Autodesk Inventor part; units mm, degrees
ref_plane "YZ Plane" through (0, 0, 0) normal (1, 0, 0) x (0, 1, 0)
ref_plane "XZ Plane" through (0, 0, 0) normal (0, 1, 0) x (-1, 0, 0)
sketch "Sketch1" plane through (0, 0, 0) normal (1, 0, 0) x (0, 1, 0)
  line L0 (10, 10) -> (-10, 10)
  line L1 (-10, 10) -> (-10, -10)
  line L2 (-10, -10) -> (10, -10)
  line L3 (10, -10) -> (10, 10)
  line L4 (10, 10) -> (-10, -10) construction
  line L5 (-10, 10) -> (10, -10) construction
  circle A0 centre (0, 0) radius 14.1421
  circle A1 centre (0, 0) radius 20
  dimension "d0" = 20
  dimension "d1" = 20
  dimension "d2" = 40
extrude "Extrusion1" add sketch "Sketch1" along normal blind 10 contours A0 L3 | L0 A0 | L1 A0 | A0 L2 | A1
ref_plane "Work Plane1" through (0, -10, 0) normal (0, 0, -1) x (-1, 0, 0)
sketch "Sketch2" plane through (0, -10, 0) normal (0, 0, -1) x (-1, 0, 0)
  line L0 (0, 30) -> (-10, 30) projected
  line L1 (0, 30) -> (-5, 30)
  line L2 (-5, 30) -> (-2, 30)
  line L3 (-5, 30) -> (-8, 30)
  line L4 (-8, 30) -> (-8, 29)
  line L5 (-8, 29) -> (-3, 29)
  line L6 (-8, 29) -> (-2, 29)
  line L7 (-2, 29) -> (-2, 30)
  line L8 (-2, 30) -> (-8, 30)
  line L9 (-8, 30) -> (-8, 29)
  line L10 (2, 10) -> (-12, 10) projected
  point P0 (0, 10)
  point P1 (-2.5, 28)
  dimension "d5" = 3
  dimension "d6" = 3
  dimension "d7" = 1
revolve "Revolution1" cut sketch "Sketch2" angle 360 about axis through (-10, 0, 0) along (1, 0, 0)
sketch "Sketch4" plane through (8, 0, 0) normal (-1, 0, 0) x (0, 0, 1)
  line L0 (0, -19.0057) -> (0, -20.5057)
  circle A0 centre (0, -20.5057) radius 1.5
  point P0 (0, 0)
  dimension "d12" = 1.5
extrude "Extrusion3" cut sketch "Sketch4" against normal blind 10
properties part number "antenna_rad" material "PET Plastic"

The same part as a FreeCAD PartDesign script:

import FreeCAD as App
import Part
import Sketcher

V = App.Vector
Q = App.Units.Quantity


def add_polygon(sketch, points):
    """Adds a closed chain of lines whose ends are joined by coincident constraints."""
    first, n = sketch.GeometryCount, len(points)
    for a, b in zip(points, points[1:] + points[:1]):
        sketch.addGeometry(Part.LineSegment(App.Vector(*a, 0), App.Vector(*b, 0)), False)
    for i in range(n):
        sketch.addConstraint(Sketcher.Constraint("Coincident", first + i, 2, first + (i + 1) % n, 1))

doc = App.newDocument("Part")
body = doc.addObject("PartDesign::Body", "Body")

# Sketch on YZ plane
sketch1 = body.newObject("Sketcher::SketchObject", "Sketch")
sketch1.AttachmentSupport = (doc.getObject("YZ_Plane"), [""])
sketch1.MapMode = "FlatFace"
sketch1.addGeometry(Part.Circle(V(0, 0, 0), V(0, 0, 1), 20), False)  # 0
add_polygon(sketch1, [(10, 10), (10, -10), (-10, -10), (-10, 10)])  # lines 1-4
sketch1.addConstraint([
    Sketcher.Constraint("Vertical", 1),
    Sketcher.Constraint("Horizontal", 2),
    Sketcher.Constraint("Vertical", 3),
    Sketcher.Constraint("Horizontal", 4),
    Sketcher.Constraint("Coincident", 0, 3, -1, 1),
    Sketcher.Constraint("Symmetric", 1, 2, 3, 2, -1, 1),
    Sketcher.Constraint("Equal", 4, 1),
    Sketcher.Constraint("Diameter", 0, Q("40 mm")),
    Sketcher.Constraint("DistanceX", 2, 2, 2, 1, Q("20 mm")),
])
pad1 = body.newObject("PartDesign::Pad", "Pad")
pad1.Profile = sketch1
pad1.Length = 10

# Sketch on XY plane
sketch2 = body.newObject("Sketcher::SketchObject", "Sketch001")
sketch2.AttachmentSupport = (doc.getObject("XY_Plane"), [""])
sketch2.MapMode = "FlatFace"
add_polygon(sketch2, [(2, 19), (2, 20), (8, 20), (8, 19)])  # lines 0-3
sketch2.addConstraint([
    Sketcher.Constraint("Vertical", 0),
    Sketcher.Constraint("Horizontal", 1),
    Sketcher.Constraint("Vertical", 2),
    Sketcher.Constraint("Horizontal", 3),
    Sketcher.Constraint("DistanceY", 0, 1, 0, 2, Q("1 mm")),
    Sketcher.Constraint("DistanceX", 1, 1, 1, 2, Q("6 mm")),
    Sketcher.Constraint("DistanceX", -1, 1, 0, 2, Q("2 mm")),
    Sketcher.Constraint("DistanceY", -1, 1, 0, 2, Q("20 mm")),
])
groove = body.newObject("PartDesign::Groove", "Groove")
groove.Profile = sketch2
groove.ReferenceAxis = (sketch2, ["H_Axis"])
groove.Angle = 360

# Sketch on YZ plane
sketch3 = body.newObject("Sketcher::SketchObject", "Sketch002")
sketch3.AttachmentSupport = (doc.getObject("YZ_Plane"), [""])
sketch3.MapMode = "FlatFace"
sketch3.AttachmentOffset = App.Placement(V(0, 0, 8), App.Rotation())
sketch3.addGeometry(Part.Circle(V(-20.5, 0, 0), V(0, 0, 1), 1.5), False)
sketch3.addConstraint([
    Sketcher.Constraint("PointOnObject", 0, 3, -1),
    Sketcher.Constraint("Diameter", 0, Q("3 mm")),
    Sketcher.Constraint("DistanceX", 0, 3, -1, 1, Q("20.5057 mm")),
])
pocket1 = body.newObject("PartDesign::Pocket", "Pocket")
pocket1.Profile = sketch3
pocket1.Length = 10
pocket1.Reversed = True

doc.recompute()
